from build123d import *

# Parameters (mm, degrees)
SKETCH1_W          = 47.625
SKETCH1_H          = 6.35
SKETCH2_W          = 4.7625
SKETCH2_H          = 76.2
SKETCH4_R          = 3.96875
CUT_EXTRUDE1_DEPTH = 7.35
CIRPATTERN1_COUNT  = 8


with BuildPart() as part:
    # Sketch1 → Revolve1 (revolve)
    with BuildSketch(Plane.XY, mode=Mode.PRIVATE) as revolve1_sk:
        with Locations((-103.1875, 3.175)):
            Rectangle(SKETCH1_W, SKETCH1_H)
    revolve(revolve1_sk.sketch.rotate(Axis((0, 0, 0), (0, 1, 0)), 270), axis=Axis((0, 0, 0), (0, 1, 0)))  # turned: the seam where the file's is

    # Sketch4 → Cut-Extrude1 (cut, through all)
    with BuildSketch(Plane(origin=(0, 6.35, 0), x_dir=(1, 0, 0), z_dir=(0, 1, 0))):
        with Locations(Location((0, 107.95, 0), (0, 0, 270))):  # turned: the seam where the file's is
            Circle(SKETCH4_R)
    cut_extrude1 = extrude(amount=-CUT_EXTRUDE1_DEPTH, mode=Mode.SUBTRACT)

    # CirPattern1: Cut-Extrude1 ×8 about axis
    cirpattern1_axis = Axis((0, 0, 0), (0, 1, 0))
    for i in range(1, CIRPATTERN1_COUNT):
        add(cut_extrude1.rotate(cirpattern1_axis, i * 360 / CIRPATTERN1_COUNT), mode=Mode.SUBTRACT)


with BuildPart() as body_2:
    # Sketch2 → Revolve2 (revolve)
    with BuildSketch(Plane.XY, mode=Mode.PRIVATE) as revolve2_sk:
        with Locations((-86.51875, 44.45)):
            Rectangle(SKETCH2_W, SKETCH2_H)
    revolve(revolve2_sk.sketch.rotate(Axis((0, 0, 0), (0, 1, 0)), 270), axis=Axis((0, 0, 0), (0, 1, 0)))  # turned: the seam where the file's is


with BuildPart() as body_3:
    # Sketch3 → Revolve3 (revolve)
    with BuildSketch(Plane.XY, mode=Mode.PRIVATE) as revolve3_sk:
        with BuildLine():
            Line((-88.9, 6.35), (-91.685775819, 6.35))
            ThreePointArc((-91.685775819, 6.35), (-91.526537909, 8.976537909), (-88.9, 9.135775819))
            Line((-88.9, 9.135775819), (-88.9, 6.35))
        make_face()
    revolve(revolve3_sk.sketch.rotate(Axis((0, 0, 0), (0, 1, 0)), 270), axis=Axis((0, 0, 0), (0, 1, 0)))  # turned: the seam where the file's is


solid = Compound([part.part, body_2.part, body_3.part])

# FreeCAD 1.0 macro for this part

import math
import FreeCAD as App
import Part
import Sketcher
from FreeCAD import Vector
Q = App.Units.Quantity

doc = App.newDocument("Part")
body = doc.addObject("PartDesign::Body", "Body")

sketch1 = body.newObject("Sketcher::SketchObject", "Sketch")
sketch1.AttachmentSupport = (doc.getObject("XY_Plane"), [""])
sketch1.MapMode = "FlatFace"
sketch1.addGeometry([
    Part.LineSegment(Vector(-127, 6.35, 0), Vector(-127, 0, 0)),
    Part.LineSegment(Vector(-127, 0, 0), Vector(-79.375, 0, 0)),
    Part.LineSegment(Vector(-79.375, 0, 0), Vector(-79.375, 6.35, 0)),
    Part.LineSegment(Vector(-79.375, 6.35, 0), Vector(-127, 6.35, 0)),
], False)
sketch1.addConstraint([
    Sketcher.Constraint("Coincident", 0, 2, 1, 1),
    Sketcher.Constraint("Coincident", 1, 2, 2, 1),
    Sketcher.Constraint("Coincident", 2, 2, 3, 1),
    Sketcher.Constraint("Coincident", 3, 2, 0, 1),
    Sketcher.Constraint("Vertical", 0),
    Sketcher.Constraint("Horizontal", 1),
    Sketcher.Constraint("Vertical", 2),
    Sketcher.Constraint("Horizontal", 3),
    Sketcher.Constraint("PointOnObject", 0, 2, -1),
    Sketcher.Constraint("DistanceX", 0, 2, -1, 1, Q("5 in")),
    Sketcher.Constraint("DistanceY", 0, 2, 0, 1, Q("0.25 in")),
    Sketcher.Constraint("DistanceX", 1, 1, 1, 2, Q("1.875 in")),
])
revolution = body.newObject("PartDesign::Revolution", "Revolution")
revolution.Profile = sketch1
revolution.ReferenceAxis = (sketch1, ["V_Axis"])
revolution.Angle = 360

sketch2 = body.newObject("Sketcher::SketchObject", "Sketch001")
sketch2.AttachmentSupport = (doc.getObject("XZ_Plane"), [""])
sketch2.MapMode = "FlatFace"
sketch2.AttachmentOffset = App.Placement(Vector(0, 0, -0.25 * 25.4), App.Rotation())
sketch2.addGeometry(Part.Circle(Vector(0, -107.95, 0), Vector(0, 0, 1), 3.96875), False)
sketch2.addConstraint([
    Sketcher.Constraint("PointOnObject", 0, 3, -2),
    Sketcher.Constraint("Diameter", 0, Q("0.3125 in")),
    Sketcher.Constraint("DistanceY", 0, 3, -1, 1, Q("4.25 in")),
])
pocket1 = body.newObject("PartDesign::Pocket", "Pocket")
pocket1.Profile = sketch2
pocket1.Type = "ThroughAll"
pocket1.Reversed = True
doc.recompute()

polarpattern = body.newObject("PartDesign::PolarPattern", "PolarPattern")
polarpattern.Originals = [pocket1]
polarpattern.Axis = (doc.getObject("Y_Axis"), [""])
polarpattern.Angle = 360
polarpattern.Occurrences = 8
body.Tip = polarpattern
body2 = doc.addObject("PartDesign::Body", "Body001")

sketch3 = body2.newObject("Sketcher::SketchObject", "Sketch002")
sketch3.AttachmentSupport = (doc.getObject("XY_Plane001"), [""])
sketch3.MapMode = "FlatFace"
sketch3.addGeometry([
    Part.LineSegment(Vector(-88.9, 82.55, 0), Vector(-88.9, 6.35, 0)),
    Part.LineSegment(Vector(-88.9, 6.35, 0), Vector(-84.1375, 6.35, 0)),
    Part.LineSegment(Vector(-84.1375, 6.35, 0), Vector(-84.1375, 82.55, 0)),
    Part.LineSegment(Vector(-84.1375, 82.55, 0), Vector(-88.9, 82.55, 0)),
], False)
sketch3.addConstraint([
    Sketcher.Constraint("Coincident", 0, 2, 1, 1),
    Sketcher.Constraint("Coincident", 1, 2, 2, 1),
    Sketcher.Constraint("Coincident", 2, 2, 3, 1),
    Sketcher.Constraint("Coincident", 3, 2, 0, 1),
    Sketcher.Constraint("Vertical", 0),
    Sketcher.Constraint("Horizontal", 1),
    Sketcher.Constraint("Vertical", 2),
    Sketcher.Constraint("Horizontal", 3),
    Sketcher.Constraint("DistanceY", 0, 2, 0, 1, Q("3 in")),
    Sketcher.Constraint("DistanceX", 0, 2, -1, 1, Q("3.5 in")),
    Sketcher.Constraint("DistanceX", 1, 1, 1, 2, Q("0.1875 in")),
    Sketcher.Constraint("DistanceY", -1, 1, 0, 2, Q("0.25 in")),
])
revolution2 = body2.newObject("PartDesign::Revolution", "Revolution001")
revolution2.Profile = sketch3
revolution2.ReferenceAxis = (sketch3, ["V_Axis"])
revolution2.Angle = 360
body3 = doc.addObject("PartDesign::Body", "Body002")

sketch4 = body3.newObject("Sketcher::SketchObject", "Sketch003")
sketch4.AttachmentSupport = (doc.getObject("XY_Plane002"), [""])
sketch4.MapMode = "FlatFace"
sketch4.addGeometry([
    Part.LineSegment(Vector(-91.685776, 6.35, 0), Vector(-88.9, 6.35, 0)),
    Part.LineSegment(Vector(-88.9, 6.35, 0), Vector(-88.9, 9.135776, 0)),
    Part.ArcOfCircle(Part.Circle(Vector(-90.123373, 7.573373, 0), Vector(0, 0, 1), 1.984375), math.radians(51.938797), math.radians(218.061203)),
], False)
sketch4.addConstraint([
    Sketcher.Constraint("Coincident", 0, 2, 1, 1),
    Sketcher.Constraint("Coincident", 1, 2, 2, 1),
    Sketcher.Constraint("Coincident", 2, 2, 0, 1),
    Sketcher.Constraint("Horizontal", 0),
    Sketcher.Constraint("Vertical", 1),
    Sketcher.Constraint("Equal", 0, 1),
    Sketcher.Constraint("Radius", 2, Q("0.078125 in")),
    Sketcher.Constraint("DistanceX", 0, 2, -1, 1, Q("3.5 in")),
    Sketcher.Constraint("DistanceY", -1, 1, 0, 2, Q("0.25 in")),
    Sketcher.Constraint("DistanceX", 0, 1, 0, 2, 2.785776),
])
revolution3 = body3.newObject("PartDesign::Revolution", "Revolution002")
revolution3.Profile = sketch4
revolution3.ReferenceAxis = (sketch4, ["V_Axis"])
revolution3.Angle = 360

doc.recompute()
